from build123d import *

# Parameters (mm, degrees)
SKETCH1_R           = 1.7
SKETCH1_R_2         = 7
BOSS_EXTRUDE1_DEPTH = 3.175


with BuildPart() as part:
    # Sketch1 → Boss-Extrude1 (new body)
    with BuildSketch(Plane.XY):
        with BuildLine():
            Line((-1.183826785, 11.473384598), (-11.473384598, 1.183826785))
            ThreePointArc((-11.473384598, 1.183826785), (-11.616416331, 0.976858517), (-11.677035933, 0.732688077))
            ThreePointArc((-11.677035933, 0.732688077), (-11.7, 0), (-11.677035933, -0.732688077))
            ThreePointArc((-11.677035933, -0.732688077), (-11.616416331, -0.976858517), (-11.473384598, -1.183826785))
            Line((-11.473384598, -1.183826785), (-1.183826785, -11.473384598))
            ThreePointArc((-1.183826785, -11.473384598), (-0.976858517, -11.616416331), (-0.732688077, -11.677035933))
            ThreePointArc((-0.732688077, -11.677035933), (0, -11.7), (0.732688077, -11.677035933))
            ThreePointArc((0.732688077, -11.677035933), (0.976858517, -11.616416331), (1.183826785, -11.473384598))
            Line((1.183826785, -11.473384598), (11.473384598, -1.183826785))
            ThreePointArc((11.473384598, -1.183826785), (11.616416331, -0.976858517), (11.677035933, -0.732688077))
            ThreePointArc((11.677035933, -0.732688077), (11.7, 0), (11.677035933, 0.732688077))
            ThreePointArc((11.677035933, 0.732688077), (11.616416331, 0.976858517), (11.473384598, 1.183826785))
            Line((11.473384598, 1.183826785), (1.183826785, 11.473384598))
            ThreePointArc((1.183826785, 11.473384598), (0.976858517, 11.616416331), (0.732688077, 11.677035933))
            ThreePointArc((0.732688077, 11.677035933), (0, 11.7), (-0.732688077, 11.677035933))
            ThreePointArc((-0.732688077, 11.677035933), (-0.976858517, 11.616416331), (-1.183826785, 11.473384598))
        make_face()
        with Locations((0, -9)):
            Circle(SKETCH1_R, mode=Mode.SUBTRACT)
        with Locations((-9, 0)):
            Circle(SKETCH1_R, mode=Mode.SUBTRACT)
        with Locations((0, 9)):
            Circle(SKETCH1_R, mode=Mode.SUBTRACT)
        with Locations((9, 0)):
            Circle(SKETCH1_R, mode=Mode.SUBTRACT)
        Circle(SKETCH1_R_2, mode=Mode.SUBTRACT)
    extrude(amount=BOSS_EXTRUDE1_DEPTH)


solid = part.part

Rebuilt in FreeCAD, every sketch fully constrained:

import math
import FreeCAD as App
import Part
import Sketcher

doc = App.newDocument("Part")
body = doc.addObject("PartDesign::Body", "Body")

# Sketch on XY plane
sketch1 = body.newObject("Sketcher::SketchObject", "Sketch")
sketch1.AttachmentSupport = (doc.getObject("XY_Plane"), [""])
sketch1.MapMode = "FlatFace"
sketch1.addGeometry([
    Part.LineSegment(App.Vector(-1.18, 11.47, 0), App.Vector(-11.47, 1.18, 0)),  # 0
    Part.ArcOfCircle(Part.Circle(App.Vector(-10.98, 0.69, 0), App.Vector(0, 0, 1), 0.7), math.radians(135), math.radians(176)),  # 1
    Part.ArcOfCircle(Part.Circle(App.Vector(0, 0, 0), App.Vector(0, 0, 1), 11.7), math.radians(176.41), math.radians(183.59)),  # 2
    Part.ArcOfCircle(Part.Circle(App.Vector(-10.98, -0.69, 0), App.Vector(0, 0, 1), 0.7), math.radians(-176), math.radians(-135)),  # 3
    Part.LineSegment(App.Vector(-11.47, -1.18, 0), App.Vector(-1.18, -11.47, 0)),  # 4
    Part.ArcOfCircle(Part.Circle(App.Vector(-0.69, -10.98, 0), App.Vector(0, 0, 1), 0.7), math.radians(-135), math.radians(-94)),  # 5
    Part.ArcOfCircle(Part.Circle(App.Vector(0, 0, 0), App.Vector(0, 0, 1), 11.7), math.radians(-93.59), math.radians(-86.41)),  # 6
    Part.ArcOfCircle(Part.Circle(App.Vector(0.69, -10.98, 0), App.Vector(0, 0, 1), 0.7), math.radians(-86), math.radians(-45)),  # 7
    Part.LineSegment(App.Vector(1.18, -11.47, 0), App.Vector(11.47, -1.18, 0)),  # 8
    Part.ArcOfCircle(Part.Circle(App.Vector(10.98, -0.69, 0), App.Vector(0, 0, 1), 0.7), math.radians(-45), math.radians(-4)),  # 9
    Part.ArcOfCircle(Part.Circle(App.Vector(0, 0, 0), App.Vector(0, 0, 1), 11.7), math.radians(-3.59), math.radians(3.59)),  # 10
    Part.ArcOfCircle(Part.Circle(App.Vector(10.98, 0.69, 0), App.Vector(0, 0, 1), 0.7), math.radians(4), math.radians(45)),  # 11
    Part.LineSegment(App.Vector(11.47, 1.18, 0), App.Vector(1.18, 11.47, 0)),  # 12
    Part.ArcOfCircle(Part.Circle(App.Vector(0.69, 10.98, 0), App.Vector(0, 0, 1), 0.7), math.radians(45), math.radians(86)),  # 13
    Part.ArcOfCircle(Part.Circle(App.Vector(0, 0, 0), App.Vector(0, 0, 1), 11.7), math.radians(86.41), math.radians(93.59)),  # 14
    Part.ArcOfCircle(Part.Circle(App.Vector(-0.69, 10.98, 0), App.Vector(0, 0, 1), 0.7), math.radians(94), math.radians(135)),  # 15
    Part.Circle(App.Vector(0, -9, 0), App.Vector(0, 0, 1), 1.7),  # 16
    Part.Circle(App.Vector(-9, 0, 0), App.Vector(0, 0, 1), 1.7),  # 17
    Part.Circle(App.Vector(0, 0, 0), App.Vector(0, 0, 1), 7),  # 18
    Part.Circle(App.Vector(9, 0, 0), App.Vector(0, 0, 1), 1.7),  # 19
    Part.Circle(App.Vector(0, 9, 0), App.Vector(0, 0, 1), 1.7),  # 20
], False)
sketch1.addConstraint([
    Sketcher.Constraint("Tangent", 0, 2, 1, 1),
    Sketcher.Constraint("Tangent", 1, 2, 2, 1),
    Sketcher.Constraint("Tangent", 2, 2, 3, 1),
    Sketcher.Constraint("Tangent", 3, 2, 4, 1),
    Sketcher.Constraint("Tangent", 4, 2, 5, 1),
    Sketcher.Constraint("Tangent", 5, 2, 6, 1),
    Sketcher.Constraint("Tangent", 6, 2, 7, 1),
    Sketcher.Constraint("Tangent", 7, 2, 8, 1),
    Sketcher.Constraint("Tangent", 8, 2, 9, 1),
    Sketcher.Constraint("Tangent", 9, 2, 10, 1),
    Sketcher.Constraint("Tangent", 10, 2, 11, 1),
    Sketcher.Constraint("Tangent", 11, 2, 12, 1),
    Sketcher.Constraint("Tangent", 12, 2, 13, 1),
    Sketcher.Constraint("Tangent", 13, 2, 14, 1),
    Sketcher.Constraint("Tangent", 14, 2, 15, 1),
    Sketcher.Constraint("Tangent", 15, 2, 0, 1),
    Sketcher.Constraint("Coincident", 2, 3, -1, 1),
    Sketcher.Constraint("Coincident", 6, 3, -1, 1),
    Sketcher.Constraint("Coincident", 10, 3, -1, 1),
    Sketcher.Constraint("Coincident", 14, 3, -1, 1),
    Sketcher.Constraint("Coincident", 18, 3, -1, 1),
    Sketcher.Constraint("Equal", 1, 3),
    Sketcher.Constraint("Equal", 3, 5),
    Sketcher.Constraint("Equal", 2, 6),
    Sketcher.Constraint("Equal", 5, 7),
    Sketcher.Constraint("Equal", 7, 9),
    Sketcher.Constraint("Equal", 6, 10),
    Sketcher.Constraint("Equal", 9, 11),
    Sketcher.Constraint("Equal", 11, 13),
    Sketcher.Constraint("Equal", 10, 14),
    Sketcher.Constraint("Equal", 13, 15),
    Sketcher.Constraint("Equal", 16, 17),
    Sketcher.Constraint("Equal", 17, 19),
    Sketcher.Constraint("Equal", 19, 20),
    Sketcher.Constraint("Symmetric", 17, 3, 19, 3, -1, 1),
    Sketcher.Constraint("Symmetric", 16, 3, 20, 3, -1, 1),
    Sketcher.Constraint("Symmetric", 0, 2, 8, 2, -1, 1),
    Sketcher.Constraint("Symmetric", 3, 2, 11, 2, -1, 1),
    Sketcher.Constraint("Symmetric", 4, 2, 7, 2, -2),
    Sketcher.Constraint("PointOnObject", 16, 3, -2),
    Sketcher.Constraint("PointOnObject", 17, 3, -1),
    Sketcher.Constraint("Perpendicular", 0, 4),
    Sketcher.Constraint("Diameter", 18, 14.0),
    Sketcher.Constraint("Diameter", 16, 3.4),
    Sketcher.Constraint("Radius", 1, 0.7),
    Sketcher.Constraint("Radius", 2, 11.7),
    Sketcher.Constraint("DistanceY", 16, 3, -1, 1, 9.0),
    Sketcher.Constraint("DistanceX", 17, 3, -1, 1, 9.0),
    Sketcher.Constraint("DistanceX", 1, 3, -1, 1, 10.97841),
])
pad1 = body.newObject("PartDesign::Pad", "Pad")
pad1.Profile = sketch1
pad1.Length = 3.175

doc.recompute()
